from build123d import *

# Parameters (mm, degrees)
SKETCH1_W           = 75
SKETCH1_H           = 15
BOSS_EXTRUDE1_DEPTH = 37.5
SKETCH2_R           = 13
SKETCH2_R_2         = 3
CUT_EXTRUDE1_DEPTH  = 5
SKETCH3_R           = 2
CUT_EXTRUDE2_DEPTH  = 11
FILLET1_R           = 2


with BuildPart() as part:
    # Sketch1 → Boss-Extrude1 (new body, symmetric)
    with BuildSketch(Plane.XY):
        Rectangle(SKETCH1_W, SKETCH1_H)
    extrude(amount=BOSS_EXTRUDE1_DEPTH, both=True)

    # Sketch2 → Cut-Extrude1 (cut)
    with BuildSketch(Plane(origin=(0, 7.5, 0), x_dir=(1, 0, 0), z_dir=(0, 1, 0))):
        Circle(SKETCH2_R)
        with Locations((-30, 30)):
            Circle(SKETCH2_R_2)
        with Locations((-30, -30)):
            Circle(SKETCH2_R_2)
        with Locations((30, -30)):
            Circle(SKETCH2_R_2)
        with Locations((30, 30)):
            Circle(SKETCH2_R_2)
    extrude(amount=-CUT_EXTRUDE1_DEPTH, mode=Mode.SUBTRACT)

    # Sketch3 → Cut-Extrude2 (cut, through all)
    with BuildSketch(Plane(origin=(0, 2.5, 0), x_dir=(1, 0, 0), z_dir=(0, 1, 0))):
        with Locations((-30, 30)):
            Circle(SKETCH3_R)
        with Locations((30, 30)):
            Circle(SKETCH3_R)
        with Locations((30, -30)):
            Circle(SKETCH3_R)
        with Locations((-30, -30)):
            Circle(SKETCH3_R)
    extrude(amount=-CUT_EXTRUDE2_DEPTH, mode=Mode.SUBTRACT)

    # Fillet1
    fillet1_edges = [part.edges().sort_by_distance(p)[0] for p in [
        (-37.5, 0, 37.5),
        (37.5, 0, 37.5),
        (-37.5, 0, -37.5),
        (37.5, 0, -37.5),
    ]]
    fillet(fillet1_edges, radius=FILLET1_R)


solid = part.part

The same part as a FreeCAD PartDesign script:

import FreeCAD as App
import Part
import Sketcher
from FreeCAD import Vector
Q = App.Units.Quantity


def edges_at(feature, points):
    """Names of the edges that pass closest to the given points."""
    edges = feature.Shape.Edges
    near = lambda p: min(range(len(edges)), key=lambda i: edges[i].distToShape(Part.Vertex(*p))[0])
    return sorted({f"Edge{near(p) + 1}" for p in points})


def add_polygon(sketch, points):
    """Adds a closed chain of lines whose ends are joined by coincident constraints."""
    first, n = sketch.GeometryCount, len(points)
    for a, b in zip(points, points[1:] + points[:1]):
        sketch.addGeometry(Part.LineSegment(App.Vector(*a, 0), App.Vector(*b, 0)), False)
    for i in range(n):
        sketch.addConstraint(Sketcher.Constraint("Coincident", first + i, 2, first + (i + 1) % n, 1))

doc = App.newDocument("Part")
body = doc.addObject("PartDesign::Body", "Body")

sketch1 = body.newObject("Sketcher::SketchObject", "Sketch")
sketch1.AttachmentSupport = (doc.getObject("XY_Plane"), [""])
sketch1.MapMode = "FlatFace"
add_polygon(sketch1, [(-37.5, 7.5), (-37.5, -7.5), (37.5, -7.5), (37.5, 7.5)])
sketch1.addConstraint(Sketcher.Constraint("Vertical", 0))
sketch1.addConstraint(Sketcher.Constraint("Horizontal", 1))
sketch1.addConstraint(Sketcher.Constraint("Vertical", 2))
sketch1.addConstraint(Sketcher.Constraint("Horizontal", 3))
sketch1.addConstraint(Sketcher.Constraint("Symmetric", 0, 2, 2, 2, -1, 1))
sketch1.addConstraint(Sketcher.Constraint("DistanceX", 1, 1, 1, 2, Q("75 mm")))
sketch1.addConstraint(Sketcher.Constraint("DistanceY", 0, 2, 0, 1, Q("15 mm")))
pad1 = body.newObject("PartDesign::Pad", "Pad")
pad1.Profile = sketch1
pad1.Length = 75
pad1.Midplane = True

sketch2 = body.newObject("Sketcher::SketchObject", "Sketch001")
sketch2.AttachmentSupport = (doc.getObject("XZ_Plane"), [""])
sketch2.MapMode = "FlatFace"
sketch2.AttachmentOffset = App.Placement(Vector(0, 0, -7.5), App.Rotation())
sketch2.addGeometry(Part.Circle(Vector(0, 0, 0), Vector(0, 0, 1), 13), False)
sketch2.addGeometry(Part.Circle(Vector(-30, -30, 0), Vector(0, 0, 1), 3), False)
sketch2.addGeometry(Part.Circle(Vector(-30, 30, 0), Vector(0, 0, 1), 3), False)
sketch2.addGeometry(Part.Circle(Vector(30, 30, 0), Vector(0, 0, 1), 3), False)
sketch2.addGeometry(Part.Circle(Vector(30, -30, 0), Vector(0, 0, 1), 3), False)
sketch2.addConstraint(Sketcher.Constraint("Coincident", 0, 3, -1, 1))
sketch2.addConstraint(Sketcher.Constraint("Equal", 1, 2))
sketch2.addConstraint(Sketcher.Constraint("Equal", 2, 3))
sketch2.addConstraint(Sketcher.Constraint("Equal", 3, 4))
sketch2.addConstraint(Sketcher.Constraint("Symmetric", 1, 3, 3, 3, -1, 1))
sketch2.addConstraint(Sketcher.Constraint("Symmetric", 2, 3, 4, 3, -1, 1))
sketch2.addConstraint(Sketcher.Constraint("Symmetric", 2, 3, 3, 3, -2))
sketch2.addConstraint(Sketcher.Constraint("Diameter", 0, Q("26 mm")))
sketch2.addConstraint(Sketcher.Constraint("Diameter", 1, Q("6 mm")))
sketch2.addConstraint(Sketcher.Constraint("DistanceX", 1, 3, -1, 1, Q("30 mm")))
sketch2.addConstraint(Sketcher.Constraint("DistanceY", 1, 3, -1, 1, Q("30 mm")))
pocket1 = body.newObject("PartDesign::Pocket", "Pocket")
pocket1.Profile = sketch2
pocket1.Length = 5
pocket1.Reversed = True

sketch3 = body.newObject("Sketcher::SketchObject", "Sketch002")
sketch3.AttachmentSupport = (doc.getObject("XZ_Plane"), [""])
sketch3.MapMode = "FlatFace"
sketch3.AttachmentOffset = App.Placement(Vector(0, 0, -2.5), App.Rotation())
sketch3.addGeometry(Part.Circle(Vector(-30, -30, 0), Vector(0, 0, 1), 2), False)
sketch3.addGeometry(Part.Circle(Vector(30, -30, 0), Vector(0, 0, 1), 2), False)
sketch3.addGeometry(Part.Circle(Vector(30, 30, 0), Vector(0, 0, 1), 2), False)
sketch3.addGeometry(Part.Circle(Vector(-30, 30, 0), Vector(0, 0, 1), 2), False)
sketch3.addConstraint(Sketcher.Constraint("Equal", 0, 1))
sketch3.addConstraint(Sketcher.Constraint("Equal", 1, 2))
sketch3.addConstraint(Sketcher.Constraint("Equal", 2, 3))
sketch3.addConstraint(Sketcher.Constraint("Symmetric", 0, 3, 2, 3, -1, 1))
sketch3.addConstraint(Sketcher.Constraint("Symmetric", 1, 3, 3, 3, -1, 1))
sketch3.addConstraint(Sketcher.Constraint("Symmetric", 0, 3, 1, 3, -2))
sketch3.addConstraint(Sketcher.Constraint("Diameter", 0, Q("4 mm")))
sketch3.addConstraint(Sketcher.Constraint("DistanceX", 0, 3, -1, 1, Q("30 mm")))
sketch3.addConstraint(Sketcher.Constraint("DistanceY", 0, 3, -1, 1, Q("30 mm")))
pocket2 = body.newObject("PartDesign::Pocket", "Pocket001")
pocket2.Profile = sketch3
pocket2.Type = "ThroughAll"
pocket2.Reversed = True
doc.recompute()

fillet = body.newObject("PartDesign::Fillet", "Fillet")
fillet.Base = (pocket2, edges_at(pocket2, [
    (-37.5, 0, 37.5),
    (37.5, 0, 37.5),
    (-37.5, 0, -37.5),
    (37.5, 0, -37.5),
]))
fillet.Radius = 2

doc.recompute()
